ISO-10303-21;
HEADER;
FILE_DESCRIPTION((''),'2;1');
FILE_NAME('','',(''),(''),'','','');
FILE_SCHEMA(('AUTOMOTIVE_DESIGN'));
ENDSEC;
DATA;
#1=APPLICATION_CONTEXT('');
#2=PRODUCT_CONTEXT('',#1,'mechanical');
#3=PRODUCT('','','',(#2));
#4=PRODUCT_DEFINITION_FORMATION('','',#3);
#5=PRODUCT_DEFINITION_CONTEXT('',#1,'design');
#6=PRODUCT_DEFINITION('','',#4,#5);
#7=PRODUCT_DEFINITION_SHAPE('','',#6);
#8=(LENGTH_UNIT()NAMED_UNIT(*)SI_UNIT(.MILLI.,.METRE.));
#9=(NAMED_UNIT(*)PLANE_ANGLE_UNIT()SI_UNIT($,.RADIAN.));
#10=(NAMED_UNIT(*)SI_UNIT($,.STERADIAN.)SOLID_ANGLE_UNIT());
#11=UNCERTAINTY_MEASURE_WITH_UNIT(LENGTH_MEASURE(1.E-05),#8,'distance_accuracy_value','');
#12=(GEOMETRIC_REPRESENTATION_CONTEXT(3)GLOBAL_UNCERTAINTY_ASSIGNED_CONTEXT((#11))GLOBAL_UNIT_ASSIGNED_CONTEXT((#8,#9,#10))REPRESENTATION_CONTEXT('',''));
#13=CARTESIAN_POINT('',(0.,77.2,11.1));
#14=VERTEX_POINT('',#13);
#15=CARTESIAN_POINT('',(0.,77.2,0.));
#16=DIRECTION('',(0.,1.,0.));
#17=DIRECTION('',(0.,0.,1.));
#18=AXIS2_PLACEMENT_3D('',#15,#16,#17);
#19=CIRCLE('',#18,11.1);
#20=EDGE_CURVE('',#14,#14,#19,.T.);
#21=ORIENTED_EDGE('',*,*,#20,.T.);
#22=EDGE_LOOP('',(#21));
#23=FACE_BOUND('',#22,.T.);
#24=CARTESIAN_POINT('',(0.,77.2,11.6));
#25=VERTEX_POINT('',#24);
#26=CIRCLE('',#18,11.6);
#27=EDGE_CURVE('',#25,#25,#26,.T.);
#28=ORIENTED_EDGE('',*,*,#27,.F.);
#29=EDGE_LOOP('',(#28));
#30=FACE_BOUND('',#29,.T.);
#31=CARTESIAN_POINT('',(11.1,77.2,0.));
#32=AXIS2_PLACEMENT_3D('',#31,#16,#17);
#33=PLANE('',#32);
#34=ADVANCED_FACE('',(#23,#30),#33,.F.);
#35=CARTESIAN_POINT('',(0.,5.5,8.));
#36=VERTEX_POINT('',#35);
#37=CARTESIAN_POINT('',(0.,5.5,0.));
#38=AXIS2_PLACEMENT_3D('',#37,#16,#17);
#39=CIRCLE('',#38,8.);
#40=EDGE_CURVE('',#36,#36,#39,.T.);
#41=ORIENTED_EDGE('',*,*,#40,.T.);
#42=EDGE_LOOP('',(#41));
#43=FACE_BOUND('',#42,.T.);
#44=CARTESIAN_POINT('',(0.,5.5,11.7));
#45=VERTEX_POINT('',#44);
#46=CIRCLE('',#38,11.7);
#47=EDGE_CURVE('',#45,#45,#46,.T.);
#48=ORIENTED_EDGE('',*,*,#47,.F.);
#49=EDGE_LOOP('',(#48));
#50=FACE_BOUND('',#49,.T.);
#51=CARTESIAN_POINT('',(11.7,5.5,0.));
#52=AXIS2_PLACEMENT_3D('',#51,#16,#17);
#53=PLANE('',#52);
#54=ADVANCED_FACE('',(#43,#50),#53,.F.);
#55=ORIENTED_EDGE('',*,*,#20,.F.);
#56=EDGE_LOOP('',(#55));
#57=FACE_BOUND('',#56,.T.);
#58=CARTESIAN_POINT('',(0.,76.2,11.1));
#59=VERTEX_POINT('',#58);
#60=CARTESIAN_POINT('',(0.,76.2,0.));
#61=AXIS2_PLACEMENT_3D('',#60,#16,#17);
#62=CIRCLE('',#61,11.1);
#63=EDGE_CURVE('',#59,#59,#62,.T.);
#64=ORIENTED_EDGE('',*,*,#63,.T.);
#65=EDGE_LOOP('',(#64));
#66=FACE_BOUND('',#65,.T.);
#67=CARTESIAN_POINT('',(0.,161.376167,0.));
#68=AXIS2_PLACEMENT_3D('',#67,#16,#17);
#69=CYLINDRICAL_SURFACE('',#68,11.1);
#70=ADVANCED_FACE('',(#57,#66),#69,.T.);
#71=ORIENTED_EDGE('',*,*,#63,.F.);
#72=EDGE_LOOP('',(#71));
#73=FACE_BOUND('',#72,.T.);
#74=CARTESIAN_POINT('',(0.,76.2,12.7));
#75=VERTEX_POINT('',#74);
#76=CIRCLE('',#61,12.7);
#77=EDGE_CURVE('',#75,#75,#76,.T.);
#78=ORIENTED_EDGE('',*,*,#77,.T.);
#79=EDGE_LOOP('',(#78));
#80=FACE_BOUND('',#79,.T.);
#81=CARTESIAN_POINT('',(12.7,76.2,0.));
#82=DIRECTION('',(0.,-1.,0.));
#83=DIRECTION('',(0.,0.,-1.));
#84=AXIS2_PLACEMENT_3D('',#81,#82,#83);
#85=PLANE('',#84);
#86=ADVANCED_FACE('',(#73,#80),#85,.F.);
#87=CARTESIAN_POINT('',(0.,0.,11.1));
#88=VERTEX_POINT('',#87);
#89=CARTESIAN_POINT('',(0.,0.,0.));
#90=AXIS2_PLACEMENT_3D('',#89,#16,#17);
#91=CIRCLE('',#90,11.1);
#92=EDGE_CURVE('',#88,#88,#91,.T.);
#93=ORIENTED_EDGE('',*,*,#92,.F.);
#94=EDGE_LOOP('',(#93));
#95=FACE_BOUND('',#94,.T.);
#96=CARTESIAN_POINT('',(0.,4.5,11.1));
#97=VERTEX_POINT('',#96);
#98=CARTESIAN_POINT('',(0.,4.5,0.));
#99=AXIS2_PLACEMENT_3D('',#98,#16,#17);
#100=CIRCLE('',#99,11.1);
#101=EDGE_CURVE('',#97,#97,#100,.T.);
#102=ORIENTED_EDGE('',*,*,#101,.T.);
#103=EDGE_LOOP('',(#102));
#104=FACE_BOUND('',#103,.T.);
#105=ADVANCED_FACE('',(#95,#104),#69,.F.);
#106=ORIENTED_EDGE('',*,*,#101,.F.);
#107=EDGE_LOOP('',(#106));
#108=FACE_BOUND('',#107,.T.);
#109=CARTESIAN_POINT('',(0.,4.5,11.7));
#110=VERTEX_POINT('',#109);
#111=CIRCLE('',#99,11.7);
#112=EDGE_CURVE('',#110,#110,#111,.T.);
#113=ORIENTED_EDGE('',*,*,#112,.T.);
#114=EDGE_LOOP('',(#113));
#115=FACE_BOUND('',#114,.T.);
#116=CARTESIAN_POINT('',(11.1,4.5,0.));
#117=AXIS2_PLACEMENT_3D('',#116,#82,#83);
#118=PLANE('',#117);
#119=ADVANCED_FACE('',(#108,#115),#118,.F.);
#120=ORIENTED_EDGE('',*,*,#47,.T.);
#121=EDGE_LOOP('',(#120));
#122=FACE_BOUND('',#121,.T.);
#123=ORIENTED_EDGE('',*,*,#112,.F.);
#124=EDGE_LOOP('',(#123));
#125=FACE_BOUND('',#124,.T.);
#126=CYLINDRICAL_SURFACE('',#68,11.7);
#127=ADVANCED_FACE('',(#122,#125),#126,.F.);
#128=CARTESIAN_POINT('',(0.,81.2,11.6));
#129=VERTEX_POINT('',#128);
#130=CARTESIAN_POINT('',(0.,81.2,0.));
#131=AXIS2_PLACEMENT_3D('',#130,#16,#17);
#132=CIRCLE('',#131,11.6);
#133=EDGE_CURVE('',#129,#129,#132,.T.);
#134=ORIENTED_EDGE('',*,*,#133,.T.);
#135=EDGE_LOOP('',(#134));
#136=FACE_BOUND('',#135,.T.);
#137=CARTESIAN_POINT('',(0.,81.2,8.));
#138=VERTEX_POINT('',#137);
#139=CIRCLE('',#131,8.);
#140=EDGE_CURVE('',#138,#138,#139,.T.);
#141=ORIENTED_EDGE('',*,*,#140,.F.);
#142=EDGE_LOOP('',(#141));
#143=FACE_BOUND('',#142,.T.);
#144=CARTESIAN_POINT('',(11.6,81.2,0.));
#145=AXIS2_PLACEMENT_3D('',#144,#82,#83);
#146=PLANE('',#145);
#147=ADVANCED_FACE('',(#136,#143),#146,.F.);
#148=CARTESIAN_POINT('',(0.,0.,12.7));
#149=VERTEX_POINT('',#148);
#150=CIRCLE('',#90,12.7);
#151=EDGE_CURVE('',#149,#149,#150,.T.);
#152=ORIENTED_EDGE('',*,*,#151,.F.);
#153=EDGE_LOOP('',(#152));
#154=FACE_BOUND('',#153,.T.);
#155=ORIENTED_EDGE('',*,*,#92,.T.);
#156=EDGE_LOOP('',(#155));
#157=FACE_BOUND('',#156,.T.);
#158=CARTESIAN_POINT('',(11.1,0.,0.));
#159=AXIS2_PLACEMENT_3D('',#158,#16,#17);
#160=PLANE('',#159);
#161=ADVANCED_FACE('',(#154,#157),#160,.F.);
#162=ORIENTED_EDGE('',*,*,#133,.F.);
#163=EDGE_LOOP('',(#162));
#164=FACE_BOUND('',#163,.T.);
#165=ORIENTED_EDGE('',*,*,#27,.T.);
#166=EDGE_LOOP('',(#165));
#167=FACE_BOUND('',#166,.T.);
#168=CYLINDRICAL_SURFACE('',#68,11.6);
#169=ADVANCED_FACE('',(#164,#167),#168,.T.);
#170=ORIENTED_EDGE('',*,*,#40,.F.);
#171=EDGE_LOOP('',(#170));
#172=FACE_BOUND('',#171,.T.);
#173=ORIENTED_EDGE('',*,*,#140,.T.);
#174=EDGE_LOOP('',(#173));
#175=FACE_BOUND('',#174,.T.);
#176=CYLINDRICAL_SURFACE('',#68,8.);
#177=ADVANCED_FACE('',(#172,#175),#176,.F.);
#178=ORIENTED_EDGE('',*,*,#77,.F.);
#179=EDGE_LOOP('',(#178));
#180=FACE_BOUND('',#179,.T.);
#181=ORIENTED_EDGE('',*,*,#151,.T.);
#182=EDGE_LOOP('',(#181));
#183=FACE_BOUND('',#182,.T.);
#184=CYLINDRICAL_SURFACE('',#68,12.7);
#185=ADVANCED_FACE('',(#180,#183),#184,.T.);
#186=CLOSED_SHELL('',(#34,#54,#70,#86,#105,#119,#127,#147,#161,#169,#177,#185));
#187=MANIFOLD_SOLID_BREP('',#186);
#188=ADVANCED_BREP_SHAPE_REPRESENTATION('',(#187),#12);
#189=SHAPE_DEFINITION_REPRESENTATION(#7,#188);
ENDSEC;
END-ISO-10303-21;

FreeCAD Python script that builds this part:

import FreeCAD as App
import Part
import Sketcher
from FreeCAD import Vector

doc = App.newDocument("Part")
params = doc.addObject("Spreadsheet::Sheet", "Params")
for row, (alias, value) in enumerate([
    ("sketch1_height", "1 mm"),
    ("sketch1_height2", "4 mm"),
    ("sketch1_width", "1.6 mm"),
    ("sketch1_width2", "0.5 mm"),
    ("sketch1_width3", "3.6 mm"),
    ("revolution_angle", "360 deg"),
], start=1):
    params.set(f"A{row}", alias)
    params.set(f"B{row}", "=" + value)
    params.setAlias(f"B{row}", alias)

body = doc.addObject("PartDesign::Body", "Body")

# Sketch on XY plane
sketch1 = body.newObject("Sketcher::SketchObject", "Sketch")
sketch1.AttachmentSupport = (doc.getObject("XY_Plane"), [""])
sketch1.MapMode = "FlatFace"
sketch1.addGeometry([
    Part.LineSegment(Vector(11.1, 4.5, 0), Vector(11.1, 0, 0)),  # 0
    Part.LineSegment(Vector(11.1, 0, 0), Vector(12.7, 0, 0)),  # 1
    Part.LineSegment(Vector(12.7, 0, 0), Vector(12.7, 76.2, 0)),  # 2
    Part.LineSegment(Vector(12.7, 76.2, 0), Vector(11.1, 76.2, 0)),  # 3
    Part.LineSegment(Vector(11.1, 76.2, 0), Vector(11.1, 77.2, 0)),  # 4
    Part.LineSegment(Vector(11.1, 77.2, 0), Vector(11.6, 77.2, 0)),  # 5
    Part.LineSegment(Vector(11.6, 77.2, 0), Vector(11.6, 81.2, 0)),  # 6
    Part.LineSegment(Vector(11.6, 81.2, 0), Vector(8, 81.2, 0)),  # 7
    Part.LineSegment(Vector(8, 81.2, 0), Vector(8, 5.5, 0)),  # 8
    Part.LineSegment(Vector(8, 5.5, 0), Vector(11.7, 5.5, 0)),  # 9
    Part.LineSegment(Vector(11.7, 5.5, 0), Vector(11.7, 4.5, 0)),  # 10
    Part.LineSegment(Vector(11.7, 4.5, 0), Vector(11.1, 4.5, 0)),  # 11
], False)
sketch1.addConstraint([
    Sketcher.Constraint("Coincident", 0, 2, 1, 1),
    Sketcher.Constraint("Coincident", 1, 2, 2, 1),
    Sketcher.Constraint("Coincident", 2, 2, 3, 1),
    Sketcher.Constraint("Coincident", 3, 2, 4, 1),
    Sketcher.Constraint("Coincident", 4, 2, 5, 1),
    Sketcher.Constraint("Coincident", 5, 2, 6, 1),
    Sketcher.Constraint("Coincident", 6, 2, 7, 1),
    Sketcher.Constraint("Coincident", 7, 2, 8, 1),
    Sketcher.Constraint("Coincident", 8, 2, 9, 1),
    Sketcher.Constraint("Coincident", 9, 2, 10, 1),
    Sketcher.Constraint("Coincident", 10, 2, 11, 1),
    Sketcher.Constraint("Coincident", 11, 2, 0, 1),
    Sketcher.Constraint("Vertical", 0),
    Sketcher.Constraint("Horizontal", 1),
    Sketcher.Constraint("Vertical", 2),
    Sketcher.Constraint("Horizontal", 3),
    Sketcher.Constraint("Vertical", 4),
    Sketcher.Constraint("Horizontal", 5),
    Sketcher.Constraint("Vertical", 6),
    Sketcher.Constraint("Horizontal", 7),
    Sketcher.Constraint("Vertical", 8),
    Sketcher.Constraint("Horizontal", 9),
    Sketcher.Constraint("Vertical", 10),
    Sketcher.Constraint("Horizontal", 11),
    Sketcher.Constraint("PointOnObject", 0, 2, -1),
    Sketcher.Constraint("Vertical", 0, 2, 3, 2),
    Sketcher.Constraint("Equal", 4, 10),
    Sketcher.Constraint("DistanceY", 4, 1, 4, 2, 1.0),
    Sketcher.Constraint("DistanceY", 6, 1, 6, 2, 4.0),
    Sketcher.Constraint("DistanceX", 1, 1, 1, 2, 1.6),
    Sketcher.Constraint("DistanceX", 5, 1, 5, 2, 0.5),
    Sketcher.Constraint("DistanceX", 7, 2, 7, 1, 3.6),
    Sketcher.Constraint("DistanceX", 9, 1, 9, 2, 3.7),
    Sketcher.Constraint("DistanceY", 0, 2, 0, 1, 4.5),
    Sketcher.Constraint("DistanceY", 2, 1, 2, 2, 76.2),
    Sketcher.Constraint("DistanceX", -1, 1, 7, 2, 8.0),
])
sketch1.setExpression("Constraints[27]", "Params.sketch1_height")
sketch1.setExpression("Constraints[28]", "Params.sketch1_height2")
sketch1.setExpression("Constraints[29]", "Params.sketch1_width")
sketch1.setExpression("Constraints[30]", "Params.sketch1_width2")
sketch1.setExpression("Constraints[31]", "Params.sketch1_width3")
revolution = body.newObject("PartDesign::Revolution", "Revolution")
revolution.Profile = sketch1
revolution.ReferenceAxis = (sketch1, ["V_Axis"])
revolution.setExpression("Angle", "Params.revolution_angle")

doc.recompute()
